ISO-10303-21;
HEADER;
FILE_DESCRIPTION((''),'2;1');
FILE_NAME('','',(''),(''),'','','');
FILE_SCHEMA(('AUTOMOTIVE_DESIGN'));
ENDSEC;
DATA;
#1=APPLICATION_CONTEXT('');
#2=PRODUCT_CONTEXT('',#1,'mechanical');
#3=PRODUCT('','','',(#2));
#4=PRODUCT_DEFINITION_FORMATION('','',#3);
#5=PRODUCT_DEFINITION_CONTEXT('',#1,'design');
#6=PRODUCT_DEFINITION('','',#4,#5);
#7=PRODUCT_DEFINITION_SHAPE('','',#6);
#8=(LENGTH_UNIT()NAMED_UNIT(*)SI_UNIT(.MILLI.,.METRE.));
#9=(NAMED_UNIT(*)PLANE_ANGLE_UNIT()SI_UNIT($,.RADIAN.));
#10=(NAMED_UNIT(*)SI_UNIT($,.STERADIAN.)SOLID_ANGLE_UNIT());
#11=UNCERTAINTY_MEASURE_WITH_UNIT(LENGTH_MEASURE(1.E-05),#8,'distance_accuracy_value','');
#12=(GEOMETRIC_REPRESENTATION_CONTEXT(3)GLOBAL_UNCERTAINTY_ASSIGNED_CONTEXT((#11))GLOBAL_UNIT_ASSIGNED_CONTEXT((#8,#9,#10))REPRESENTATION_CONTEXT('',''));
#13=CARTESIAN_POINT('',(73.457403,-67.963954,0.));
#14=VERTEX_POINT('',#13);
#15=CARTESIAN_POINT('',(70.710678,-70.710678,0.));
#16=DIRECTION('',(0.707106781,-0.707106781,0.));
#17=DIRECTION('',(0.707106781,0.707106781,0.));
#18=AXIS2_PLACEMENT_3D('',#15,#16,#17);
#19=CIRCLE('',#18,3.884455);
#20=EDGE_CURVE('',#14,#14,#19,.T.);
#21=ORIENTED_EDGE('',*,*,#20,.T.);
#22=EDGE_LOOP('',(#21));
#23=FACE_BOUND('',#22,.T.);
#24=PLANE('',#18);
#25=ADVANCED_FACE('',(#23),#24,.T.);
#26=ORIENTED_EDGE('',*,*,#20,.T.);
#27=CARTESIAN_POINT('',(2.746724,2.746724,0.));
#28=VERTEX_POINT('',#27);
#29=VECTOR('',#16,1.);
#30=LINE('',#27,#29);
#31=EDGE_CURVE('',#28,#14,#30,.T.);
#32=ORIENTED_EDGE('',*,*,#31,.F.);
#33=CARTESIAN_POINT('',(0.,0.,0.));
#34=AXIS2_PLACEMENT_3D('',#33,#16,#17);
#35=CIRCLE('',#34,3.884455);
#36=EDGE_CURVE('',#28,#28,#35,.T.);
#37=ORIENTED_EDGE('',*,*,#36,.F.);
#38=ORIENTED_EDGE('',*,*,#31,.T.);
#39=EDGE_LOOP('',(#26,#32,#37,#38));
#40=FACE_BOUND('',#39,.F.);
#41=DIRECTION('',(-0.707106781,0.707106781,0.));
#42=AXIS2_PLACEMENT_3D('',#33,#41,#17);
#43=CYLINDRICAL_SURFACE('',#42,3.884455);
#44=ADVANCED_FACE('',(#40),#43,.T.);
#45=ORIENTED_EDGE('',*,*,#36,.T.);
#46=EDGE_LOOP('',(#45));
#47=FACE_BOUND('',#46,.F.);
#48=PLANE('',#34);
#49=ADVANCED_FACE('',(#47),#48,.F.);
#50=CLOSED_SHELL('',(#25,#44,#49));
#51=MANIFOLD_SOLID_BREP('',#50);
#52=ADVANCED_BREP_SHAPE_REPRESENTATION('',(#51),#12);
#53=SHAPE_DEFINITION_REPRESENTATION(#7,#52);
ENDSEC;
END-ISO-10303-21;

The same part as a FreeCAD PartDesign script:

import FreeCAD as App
import Part
import Sketcher
Q = App.Units.Quantity

doc = App.newDocument("Part")
body = doc.addObject("PartDesign::Body", "Body")

sketch1 = body.newObject("Sketcher::SketchObject", "Sketch")
sketch1.AttachmentSupport = (doc.getObject("XZ_Plane"), [""])
sketch1.MapMode = "FlatFace"
sketch1.addGeometry(Part.Circle(App.Vector(0, 0, 0), App.Vector(0, 0, 1), 3.9), False)
sketch1.addConstraint([
    Sketcher.Constraint("Coincident", 0, 3, -1, 1),
    Sketcher.Constraint("Diameter", 0, Q("7.76891 mm")),
])
pad1 = body.newObject("PartDesign::Pad", "Pad")
pad1.Profile = sketch1
pad1.Length = 100
body2 = doc.addObject("PartDesign::Body", "Body001")
doc.recompute()

body.Placement = App.Placement(App.Vector(0, 0, 0), App.Rotation(App.Vector(0, 0, 1), 45))
boolean = body2.newObject("PartDesign::Boolean", "Boolean")
boolean.Type = "Fuse"
boolean.addObjects([body])

doc.recompute()
